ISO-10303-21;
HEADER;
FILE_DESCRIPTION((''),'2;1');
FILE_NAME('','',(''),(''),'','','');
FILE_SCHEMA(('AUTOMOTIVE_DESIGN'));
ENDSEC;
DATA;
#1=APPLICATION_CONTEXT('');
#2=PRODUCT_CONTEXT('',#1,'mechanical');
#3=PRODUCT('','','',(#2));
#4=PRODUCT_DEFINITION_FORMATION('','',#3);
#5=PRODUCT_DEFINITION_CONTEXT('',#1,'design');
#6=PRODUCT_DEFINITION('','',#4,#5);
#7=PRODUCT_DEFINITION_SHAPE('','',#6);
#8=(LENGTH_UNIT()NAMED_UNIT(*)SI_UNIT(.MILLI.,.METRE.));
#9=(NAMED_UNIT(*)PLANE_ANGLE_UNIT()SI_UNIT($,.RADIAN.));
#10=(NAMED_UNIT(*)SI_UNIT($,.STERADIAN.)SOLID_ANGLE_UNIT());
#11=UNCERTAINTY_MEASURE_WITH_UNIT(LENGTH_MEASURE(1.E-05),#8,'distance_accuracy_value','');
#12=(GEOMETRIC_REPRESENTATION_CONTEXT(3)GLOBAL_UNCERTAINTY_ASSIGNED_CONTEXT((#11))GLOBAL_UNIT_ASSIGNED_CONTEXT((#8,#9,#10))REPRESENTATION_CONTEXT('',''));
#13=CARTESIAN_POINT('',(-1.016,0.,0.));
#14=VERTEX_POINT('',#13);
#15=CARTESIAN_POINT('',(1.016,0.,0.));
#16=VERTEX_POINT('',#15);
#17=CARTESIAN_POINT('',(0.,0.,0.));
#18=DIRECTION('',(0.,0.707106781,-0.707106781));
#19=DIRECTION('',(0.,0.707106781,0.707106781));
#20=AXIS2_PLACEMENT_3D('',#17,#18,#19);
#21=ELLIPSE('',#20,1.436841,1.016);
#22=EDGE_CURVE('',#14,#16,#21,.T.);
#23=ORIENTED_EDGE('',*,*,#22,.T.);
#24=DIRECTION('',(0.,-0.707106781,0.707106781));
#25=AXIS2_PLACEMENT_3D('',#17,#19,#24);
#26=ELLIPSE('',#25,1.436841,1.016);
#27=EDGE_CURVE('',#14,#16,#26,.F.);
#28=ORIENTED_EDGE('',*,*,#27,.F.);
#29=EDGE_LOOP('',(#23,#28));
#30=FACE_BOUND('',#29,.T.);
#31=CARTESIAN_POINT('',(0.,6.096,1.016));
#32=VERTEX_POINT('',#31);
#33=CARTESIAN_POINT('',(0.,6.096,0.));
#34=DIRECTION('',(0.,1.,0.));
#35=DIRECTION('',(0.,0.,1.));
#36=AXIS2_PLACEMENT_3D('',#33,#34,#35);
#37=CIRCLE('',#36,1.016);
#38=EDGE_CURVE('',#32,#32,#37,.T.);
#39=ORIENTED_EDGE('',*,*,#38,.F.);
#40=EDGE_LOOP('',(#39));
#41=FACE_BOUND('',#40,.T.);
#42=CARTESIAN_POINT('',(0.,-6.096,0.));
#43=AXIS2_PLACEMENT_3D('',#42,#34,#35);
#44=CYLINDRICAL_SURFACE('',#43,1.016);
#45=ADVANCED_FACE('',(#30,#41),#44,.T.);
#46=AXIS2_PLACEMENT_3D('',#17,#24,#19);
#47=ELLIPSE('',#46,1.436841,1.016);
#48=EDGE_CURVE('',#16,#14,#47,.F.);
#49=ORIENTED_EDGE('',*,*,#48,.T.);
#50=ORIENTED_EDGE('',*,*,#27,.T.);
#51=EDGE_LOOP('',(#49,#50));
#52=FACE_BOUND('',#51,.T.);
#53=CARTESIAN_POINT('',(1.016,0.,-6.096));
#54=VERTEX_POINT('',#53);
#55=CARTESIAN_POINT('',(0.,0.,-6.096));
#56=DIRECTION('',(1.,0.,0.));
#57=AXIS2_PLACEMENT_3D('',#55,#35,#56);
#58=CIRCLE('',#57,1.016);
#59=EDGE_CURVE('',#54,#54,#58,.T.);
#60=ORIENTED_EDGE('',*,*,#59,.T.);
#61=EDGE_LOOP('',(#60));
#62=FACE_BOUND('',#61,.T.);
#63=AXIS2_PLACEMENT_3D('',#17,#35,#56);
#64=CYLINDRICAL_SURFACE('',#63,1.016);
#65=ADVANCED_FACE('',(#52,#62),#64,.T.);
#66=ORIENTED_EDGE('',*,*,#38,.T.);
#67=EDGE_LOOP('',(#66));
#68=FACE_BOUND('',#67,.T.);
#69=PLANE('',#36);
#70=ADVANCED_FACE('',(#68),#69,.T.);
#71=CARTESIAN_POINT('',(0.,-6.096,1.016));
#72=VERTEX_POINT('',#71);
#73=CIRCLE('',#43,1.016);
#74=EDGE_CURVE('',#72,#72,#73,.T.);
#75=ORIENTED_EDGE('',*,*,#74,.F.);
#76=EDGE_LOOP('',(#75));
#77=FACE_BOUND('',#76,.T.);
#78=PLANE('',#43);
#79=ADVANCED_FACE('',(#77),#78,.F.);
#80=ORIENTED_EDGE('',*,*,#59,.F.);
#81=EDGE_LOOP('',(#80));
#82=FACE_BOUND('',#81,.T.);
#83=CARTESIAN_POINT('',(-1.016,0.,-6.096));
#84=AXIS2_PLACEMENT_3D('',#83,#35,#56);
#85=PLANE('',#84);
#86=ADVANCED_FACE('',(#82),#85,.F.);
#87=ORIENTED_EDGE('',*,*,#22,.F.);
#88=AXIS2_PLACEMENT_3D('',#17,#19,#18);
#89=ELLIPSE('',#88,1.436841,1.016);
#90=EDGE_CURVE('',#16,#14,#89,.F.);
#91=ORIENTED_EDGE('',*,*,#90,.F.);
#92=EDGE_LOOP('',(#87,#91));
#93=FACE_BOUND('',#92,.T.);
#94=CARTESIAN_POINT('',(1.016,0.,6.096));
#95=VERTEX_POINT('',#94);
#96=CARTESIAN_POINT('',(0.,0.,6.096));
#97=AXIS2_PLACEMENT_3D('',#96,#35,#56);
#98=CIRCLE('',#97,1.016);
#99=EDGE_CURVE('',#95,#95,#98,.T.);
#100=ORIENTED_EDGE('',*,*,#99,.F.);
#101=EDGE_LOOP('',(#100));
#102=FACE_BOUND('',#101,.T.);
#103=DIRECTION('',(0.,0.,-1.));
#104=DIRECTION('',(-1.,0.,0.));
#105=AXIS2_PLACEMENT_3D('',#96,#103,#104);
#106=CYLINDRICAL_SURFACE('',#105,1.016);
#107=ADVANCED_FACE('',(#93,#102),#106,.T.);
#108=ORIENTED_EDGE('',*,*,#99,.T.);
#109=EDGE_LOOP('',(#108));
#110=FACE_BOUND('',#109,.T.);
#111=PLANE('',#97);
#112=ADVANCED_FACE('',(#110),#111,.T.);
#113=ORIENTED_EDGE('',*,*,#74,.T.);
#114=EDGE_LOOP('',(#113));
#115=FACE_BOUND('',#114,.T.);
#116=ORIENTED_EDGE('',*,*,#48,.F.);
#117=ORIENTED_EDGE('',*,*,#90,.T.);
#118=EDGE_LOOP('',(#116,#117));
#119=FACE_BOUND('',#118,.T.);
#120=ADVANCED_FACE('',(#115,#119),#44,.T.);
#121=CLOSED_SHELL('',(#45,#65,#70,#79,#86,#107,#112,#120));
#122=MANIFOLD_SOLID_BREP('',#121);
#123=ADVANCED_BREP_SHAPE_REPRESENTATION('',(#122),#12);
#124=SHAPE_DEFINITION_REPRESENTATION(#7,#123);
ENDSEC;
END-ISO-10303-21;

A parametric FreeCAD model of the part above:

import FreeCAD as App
import Part
import Sketcher

V = App.Vector
Q = App.Units.Quantity

doc = App.newDocument("Part")
params = doc.addObject("Spreadsheet::Sheet", "Params")
for row, (alias, value) in enumerate([
    ("sketch1_width", "0.04 in"),
    ("sketch1_height", "0.24 in"),
    ("revolution_angle", "360 deg"),
    ("sketch2_diameter", "0.08 in"),
    ("pad1_length", "0.24 in"),
    ("pad1_length2", "0.24 in"),
    ("sketch3_diameter", "0.08 in"),
    ("pad2_length", "0.24 in"),
], start=1):
    params.set(f"A{row}", alias)
    params.set(f"B{row}", "=" + value)
    params.setAlias(f"B{row}", alias)

body = doc.addObject("PartDesign::Body", "Body")

sketch1 = body.newObject("Sketcher::SketchObject", "Sketch")
sketch1.AttachmentSupport = (doc.getObject("XZ_Plane"), [""])
sketch1.MapMode = "FlatFace"
sketch1.addGeometry([
    Part.LineSegment(V(-1, -6.1, 0), V(-1, 0, 0)),
    Part.LineSegment(V(-1, 0, 0), V(0, 0, 0)),
    Part.LineSegment(V(0, 0, 0), V(0, -6.1, 0)),
    Part.LineSegment(V(0, -6.1, 0), V(-1, -6.1, 0)),
], False)
sketch1.addConstraint([
    Sketcher.Constraint("Coincident", 0, 2, 1, 1),
    Sketcher.Constraint("Coincident", 1, 2, 2, 1),
    Sketcher.Constraint("Coincident", 2, 2, 3, 1),
    Sketcher.Constraint("Coincident", 3, 2, 0, 1),
    Sketcher.Constraint("Vertical", 0),
    Sketcher.Constraint("Horizontal", 1),
    Sketcher.Constraint("Vertical", 2),
    Sketcher.Constraint("Horizontal", 3),
    Sketcher.Constraint("Coincident", 1, 2, -1, 1),
    Sketcher.Constraint("DistanceX", 1, 1, 1, 2, Q("0.04 in")),
    Sketcher.Constraint("DistanceY", 0, 1, 0, 2, Q("0.24 in")),
])
sketch1.setExpression("Constraints[9]", "Params.sketch1_width")
sketch1.setExpression("Constraints[10]", "Params.sketch1_height")
revolution = body.newObject("PartDesign::Revolution", "Revolution")
revolution.Profile = sketch1
revolution.ReferenceAxis = (sketch1, ["V_Axis"])
revolution.setExpression("Angle", "Params.revolution_angle")

sketch2 = body.newObject("Sketcher::SketchObject", "Sketch001")
sketch2.AttachmentSupport = (doc.getObject("XZ_Plane"), [""])
sketch2.MapMode = "FlatFace"
sketch2.addGeometry(Part.Circle(V(0, 0, 0), V(0, 0, 1), 1), False)
sketch2.addConstraint([
    Sketcher.Constraint("Coincident", 0, 3, -1, 1),
    Sketcher.Constraint("Diameter", 0, Q("0.08 in")),
])
sketch2.setExpression("Constraints[1]", "Params.sketch2_diameter")
pad1 = body.newObject("PartDesign::Pad", "Pad")
pad1.Profile = sketch2
pad1.Type = "TwoLengths"
pad1.setExpression("Length", "Params.pad1_length")
pad1.setExpression("Length2", "Params.pad1_length2")
pad1.Reversed = True

sketch3 = body.newObject("Sketcher::SketchObject", "Sketch002")
sketch3.AttachmentSupport = (doc.getObject("XY_Plane"), [""])
sketch3.MapMode = "FlatFace"
sketch3.AttachmentOffset = App.Placement(V(0, 0, 0.24 * 25.4), App.Rotation())
sketch3.addGeometry(Part.Circle(V(0, 0, 0), V(0, 0, 1), 1), False)
sketch3.addConstraint([
    Sketcher.Constraint("Coincident", 0, 3, -1, 1),
    Sketcher.Constraint("Diameter", 0, Q("0.08 in")),
])
sketch3.setExpression("Constraints[1]", "Params.sketch3_diameter")
pad2 = body.newObject("PartDesign::Pad", "Pad001")
pad2.Profile = sketch3
pad2.setExpression("Length", "Params.pad2_length")
pad2.Reversed = True

doc.recompute()
